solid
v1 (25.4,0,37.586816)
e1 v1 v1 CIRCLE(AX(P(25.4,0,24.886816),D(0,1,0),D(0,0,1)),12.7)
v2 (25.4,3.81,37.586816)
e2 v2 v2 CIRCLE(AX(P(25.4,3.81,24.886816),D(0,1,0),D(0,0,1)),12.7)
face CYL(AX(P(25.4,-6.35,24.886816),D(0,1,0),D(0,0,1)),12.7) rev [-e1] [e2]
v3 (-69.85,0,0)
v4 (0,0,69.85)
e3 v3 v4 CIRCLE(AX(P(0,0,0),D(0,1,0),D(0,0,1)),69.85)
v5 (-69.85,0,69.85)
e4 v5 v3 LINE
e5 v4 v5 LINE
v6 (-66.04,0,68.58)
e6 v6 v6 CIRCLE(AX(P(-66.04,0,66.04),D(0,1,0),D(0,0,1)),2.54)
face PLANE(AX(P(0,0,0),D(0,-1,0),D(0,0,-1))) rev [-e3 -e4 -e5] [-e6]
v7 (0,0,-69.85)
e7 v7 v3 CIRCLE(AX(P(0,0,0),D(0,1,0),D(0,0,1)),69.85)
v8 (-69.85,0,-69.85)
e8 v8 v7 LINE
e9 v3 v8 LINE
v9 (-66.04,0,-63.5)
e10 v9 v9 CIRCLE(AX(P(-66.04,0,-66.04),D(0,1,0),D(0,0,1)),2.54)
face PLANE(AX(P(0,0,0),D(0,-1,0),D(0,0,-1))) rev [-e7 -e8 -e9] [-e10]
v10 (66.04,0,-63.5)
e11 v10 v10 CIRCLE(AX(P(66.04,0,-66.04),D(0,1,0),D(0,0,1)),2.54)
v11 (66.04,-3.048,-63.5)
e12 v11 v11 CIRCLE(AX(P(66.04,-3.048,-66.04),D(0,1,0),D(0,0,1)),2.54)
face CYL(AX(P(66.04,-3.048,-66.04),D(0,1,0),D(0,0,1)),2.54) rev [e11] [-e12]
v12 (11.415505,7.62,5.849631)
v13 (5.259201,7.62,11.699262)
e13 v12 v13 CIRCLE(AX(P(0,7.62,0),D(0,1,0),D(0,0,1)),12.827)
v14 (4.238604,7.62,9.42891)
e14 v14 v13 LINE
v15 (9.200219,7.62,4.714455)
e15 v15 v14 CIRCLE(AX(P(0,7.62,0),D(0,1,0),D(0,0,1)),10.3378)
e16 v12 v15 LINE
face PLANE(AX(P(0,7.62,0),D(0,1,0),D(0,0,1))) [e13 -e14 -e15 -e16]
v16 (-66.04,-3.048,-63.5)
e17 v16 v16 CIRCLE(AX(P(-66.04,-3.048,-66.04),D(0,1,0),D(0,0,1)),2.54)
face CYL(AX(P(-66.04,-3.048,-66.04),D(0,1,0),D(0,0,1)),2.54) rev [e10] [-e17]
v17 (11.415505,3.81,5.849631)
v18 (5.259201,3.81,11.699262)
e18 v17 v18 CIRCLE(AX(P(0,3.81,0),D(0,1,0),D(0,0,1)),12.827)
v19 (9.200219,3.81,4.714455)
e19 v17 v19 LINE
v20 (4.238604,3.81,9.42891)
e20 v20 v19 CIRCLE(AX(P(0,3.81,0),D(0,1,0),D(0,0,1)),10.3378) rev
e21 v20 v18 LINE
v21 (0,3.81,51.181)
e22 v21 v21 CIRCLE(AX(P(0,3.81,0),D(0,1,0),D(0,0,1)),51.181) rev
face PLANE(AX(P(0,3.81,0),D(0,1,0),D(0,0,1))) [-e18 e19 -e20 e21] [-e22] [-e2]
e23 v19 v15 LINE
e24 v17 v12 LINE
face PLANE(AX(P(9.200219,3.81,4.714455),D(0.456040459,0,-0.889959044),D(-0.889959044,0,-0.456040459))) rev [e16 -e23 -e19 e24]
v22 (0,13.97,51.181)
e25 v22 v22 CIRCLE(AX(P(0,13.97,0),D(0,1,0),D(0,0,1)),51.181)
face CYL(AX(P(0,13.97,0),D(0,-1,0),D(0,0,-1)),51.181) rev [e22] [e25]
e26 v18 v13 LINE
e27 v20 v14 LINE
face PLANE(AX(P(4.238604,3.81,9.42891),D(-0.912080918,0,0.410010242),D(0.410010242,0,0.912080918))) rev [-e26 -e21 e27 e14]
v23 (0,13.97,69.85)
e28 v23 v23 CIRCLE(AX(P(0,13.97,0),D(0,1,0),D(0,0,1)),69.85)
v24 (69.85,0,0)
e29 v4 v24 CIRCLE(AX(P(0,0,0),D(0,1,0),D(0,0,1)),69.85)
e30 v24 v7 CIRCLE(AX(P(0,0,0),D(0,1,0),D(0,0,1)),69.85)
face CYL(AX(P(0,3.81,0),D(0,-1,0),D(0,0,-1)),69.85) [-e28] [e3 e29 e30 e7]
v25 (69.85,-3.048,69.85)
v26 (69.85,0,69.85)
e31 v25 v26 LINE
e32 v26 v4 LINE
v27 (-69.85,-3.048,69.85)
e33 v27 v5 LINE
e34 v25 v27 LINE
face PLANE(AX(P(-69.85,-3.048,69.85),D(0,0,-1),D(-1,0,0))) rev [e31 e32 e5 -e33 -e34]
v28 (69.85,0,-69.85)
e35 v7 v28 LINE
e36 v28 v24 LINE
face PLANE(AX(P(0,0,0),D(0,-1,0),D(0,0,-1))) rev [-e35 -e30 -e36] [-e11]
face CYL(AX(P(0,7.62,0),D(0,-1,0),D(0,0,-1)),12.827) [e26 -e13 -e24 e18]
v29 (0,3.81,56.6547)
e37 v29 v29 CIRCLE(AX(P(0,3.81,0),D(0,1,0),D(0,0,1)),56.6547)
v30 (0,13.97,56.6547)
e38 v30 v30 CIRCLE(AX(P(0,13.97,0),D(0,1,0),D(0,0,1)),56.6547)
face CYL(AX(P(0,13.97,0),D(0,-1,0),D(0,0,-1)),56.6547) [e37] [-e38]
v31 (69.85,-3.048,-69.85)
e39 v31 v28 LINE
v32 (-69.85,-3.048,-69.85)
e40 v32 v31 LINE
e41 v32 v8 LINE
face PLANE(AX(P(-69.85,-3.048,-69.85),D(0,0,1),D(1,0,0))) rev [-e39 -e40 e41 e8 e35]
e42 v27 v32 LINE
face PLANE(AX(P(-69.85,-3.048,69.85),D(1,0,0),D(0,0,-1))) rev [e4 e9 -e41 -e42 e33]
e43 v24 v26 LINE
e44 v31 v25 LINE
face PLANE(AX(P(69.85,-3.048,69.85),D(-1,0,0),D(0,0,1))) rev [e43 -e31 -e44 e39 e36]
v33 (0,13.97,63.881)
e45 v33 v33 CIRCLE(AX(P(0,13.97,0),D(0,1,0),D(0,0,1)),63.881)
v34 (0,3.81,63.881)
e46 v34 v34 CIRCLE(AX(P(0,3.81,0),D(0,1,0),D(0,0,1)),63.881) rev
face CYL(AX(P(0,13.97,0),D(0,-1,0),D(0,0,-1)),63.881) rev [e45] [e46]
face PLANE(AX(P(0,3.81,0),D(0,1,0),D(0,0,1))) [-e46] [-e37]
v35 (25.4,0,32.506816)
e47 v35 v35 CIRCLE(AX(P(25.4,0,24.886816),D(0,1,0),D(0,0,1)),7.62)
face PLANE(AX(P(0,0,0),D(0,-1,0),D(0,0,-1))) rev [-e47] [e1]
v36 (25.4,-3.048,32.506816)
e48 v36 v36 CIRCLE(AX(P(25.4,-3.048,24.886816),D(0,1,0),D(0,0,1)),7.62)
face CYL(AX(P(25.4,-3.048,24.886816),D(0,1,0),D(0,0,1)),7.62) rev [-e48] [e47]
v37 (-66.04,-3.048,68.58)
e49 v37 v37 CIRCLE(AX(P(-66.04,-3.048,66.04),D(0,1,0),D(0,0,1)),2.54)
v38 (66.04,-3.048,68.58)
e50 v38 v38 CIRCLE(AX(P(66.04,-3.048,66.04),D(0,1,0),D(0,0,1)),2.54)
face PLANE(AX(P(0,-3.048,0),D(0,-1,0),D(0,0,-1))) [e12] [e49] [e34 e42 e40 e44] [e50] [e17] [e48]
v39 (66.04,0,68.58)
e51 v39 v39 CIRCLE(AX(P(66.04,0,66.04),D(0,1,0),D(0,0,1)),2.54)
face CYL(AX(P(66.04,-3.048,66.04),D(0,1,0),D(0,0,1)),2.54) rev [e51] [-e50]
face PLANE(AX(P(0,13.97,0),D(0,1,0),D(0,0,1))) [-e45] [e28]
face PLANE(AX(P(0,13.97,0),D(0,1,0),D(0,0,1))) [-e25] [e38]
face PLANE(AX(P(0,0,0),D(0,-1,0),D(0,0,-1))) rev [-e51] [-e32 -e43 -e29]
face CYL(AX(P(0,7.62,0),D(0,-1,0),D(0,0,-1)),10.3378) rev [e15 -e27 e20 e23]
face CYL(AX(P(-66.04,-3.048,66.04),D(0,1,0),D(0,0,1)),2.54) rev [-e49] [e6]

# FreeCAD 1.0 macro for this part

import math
import FreeCAD as App
import Part
import Sketcher
Q = App.Units.Quantity


def add_polygon(sketch, points):
    """Adds a closed chain of lines whose ends are joined by coincident constraints."""
    first, n = sketch.GeometryCount, len(points)
    for a, b in zip(points, points[1:] + points[:1]):
        sketch.addGeometry(Part.LineSegment(App.Vector(*a, 0), App.Vector(*b, 0)), False)
    for i in range(n):
        sketch.addConstraint(Sketcher.Constraint("Coincident", first + i, 2, first + (i + 1) % n, 1))

doc = App.newDocument("Part")
params = doc.addObject("Spreadsheet::Sheet", "Params")
for row, (alias, value) in enumerate([
    ("sketch1_diameter", "5.5 in"),
    ("pad1_length", "0.15 in"),
    ("sketch2_diameter", "5.5 in"),
    ("sketch2_diameter2", "5.03 in"),
    ("sketch2_diameter3", "4.03 in"),
    ("sketch2_diameter4", "4.461 in"),
    ("pad2_length", "0.4 in"),
    ("sketch3_diameter", "1.01 in"),
    ("sketch3_diameter2", "0.814 in"),
    ("pad3_length", "0.15 in"),
    ("sketch4_radius", "0.505 in"),
    ("sketch4_radius2", "0.407 in"),
    ("pocket1_length", "0.15 in"),
    ("sketch5_diameter", "1 in"),
    ("pocket2_length", "0.4 in"),
    ("sketch6_width", "5.5 in"),
    ("pad4_length", "0.12 in"),
    ("sketch7_diameter", "0.6 in"),
    ("sketch7_diameter2", "0.2 in"),
    ("pocket3_length", "0.12 in"),
], start=1):
    params.set(f"A{row}", alias)
    params.set(f"B{row}", "=" + value)
    params.setAlias(f"B{row}", alias)

body = doc.addObject("PartDesign::Body", "Body")

sketch1 = body.newObject("Sketcher::SketchObject", "Sketch")
sketch1.AttachmentSupport = (doc.getObject("XZ_Plane"), [""])
sketch1.MapMode = "FlatFace"
sketch1.addGeometry(Part.Circle(App.Vector(0, 0, 0), App.Vector(0, 0, 1), 70), False)
sketch1.addConstraint([
    Sketcher.Constraint("Coincident", 0, 3, -1, 1),
    Sketcher.Constraint("Diameter", 0, Q("5.5 in")),
])
sketch1.setExpression("Constraints[1]", "Params.sketch1_diameter")
pad1 = body.newObject("PartDesign::Pad", "Pad")
pad1.Profile = sketch1
pad1.setExpression("Length", "Params.pad1_length")
pad1.Reversed = True

sketch2 = body.newObject("Sketcher::SketchObject", "Sketch001")
sketch2.AttachmentSupport = (doc.getObject("XZ_Plane"), [""])
sketch2.MapMode = "FlatFace"
sketch2.AttachmentOffset = App.Placement(App.Vector(0, 0, -0.15 * 25.4), App.Rotation())
sketch2.addGeometry([
    Part.Circle(App.Vector(0, 0, 0), App.Vector(0, 0, 1), 70),
    Part.Circle(App.Vector(0, 0, 0), App.Vector(0, 0, 1), 64),
    Part.Circle(App.Vector(0, 0, 0), App.Vector(0, 0, 1), 57),
    Part.Circle(App.Vector(0, 0, 0), App.Vector(0, 0, 1), 51),
], False)
sketch2.addConstraint([
    Sketcher.Constraint("Coincident", 0, 3, -1, 1),
    Sketcher.Constraint("Coincident", 1, 3, -1, 1),
    Sketcher.Constraint("Coincident", 2, 3, -1, 1),
    Sketcher.Constraint("Coincident", 3, 3, -1, 1),
    Sketcher.Constraint("Diameter", 0, Q("5.5 in")),
    Sketcher.Constraint("Diameter", 1, Q("5.03 in")),
    Sketcher.Constraint("Diameter", 3, Q("4.03 in")),
    Sketcher.Constraint("Diameter", 2, Q("4.461 in")),
])
sketch2.setExpression("Constraints[4]", "Params.sketch2_diameter")
sketch2.setExpression("Constraints[5]", "Params.sketch2_diameter2")
sketch2.setExpression("Constraints[6]", "Params.sketch2_diameter3")
sketch2.setExpression("Constraints[7]", "Params.sketch2_diameter4")
pad2 = body.newObject("PartDesign::Pad", "Pad001")
pad2.Profile = sketch2
pad2.setExpression("Length", "Params.pad2_length")
pad2.Reversed = True

sketch3 = body.newObject("Sketcher::SketchObject", "Sketch002")
sketch3.AttachmentSupport = (doc.getObject("XZ_Plane"), [""])
sketch3.MapMode = "FlatFace"
sketch3.AttachmentOffset = App.Placement(App.Vector(0, 0, -0.15 * 25.4), App.Rotation())
sketch3.addGeometry([
    Part.Circle(App.Vector(0, 0, 0), App.Vector(0, 0, 1), 13),
    Part.Circle(App.Vector(0, 0, 0), App.Vector(0, 0, 1), 10),
], False)
sketch3.addConstraint([
    Sketcher.Constraint("Coincident", 0, 3, -1, 1),
    Sketcher.Constraint("Coincident", 1, 3, -1, 1),
    Sketcher.Constraint("Diameter", 0, Q("1.01 in")),
    Sketcher.Constraint("Diameter", 1, Q("0.814 in")),
])
sketch3.setExpression("Constraints[2]", "Params.sketch3_diameter")
sketch3.setExpression("Constraints[3]", "Params.sketch3_diameter2")
pad3 = body.newObject("PartDesign::Pad", "Pad002")
pad3.Profile = sketch3
pad3.setExpression("Length", "Params.pad3_length")
pad3.Reversed = True

sketch4 = body.newObject("Sketcher::SketchObject", "Sketch003")
sketch4.AttachmentSupport = (doc.getObject("XZ_Plane"), [""])
sketch4.MapMode = "FlatFace"
sketch4.AttachmentOffset = App.Placement(App.Vector(0, 0, -0.3 * 25.4), App.Rotation())
sketch4.addGeometry([
    Part.LineSegment(App.Vector(4.2, 9.4, 0), App.Vector(5.3, 11.7, 0)),
    Part.ArcOfCircle(Part.Circle(App.Vector(0, 0, 0), App.Vector(0, 0, 1), 12.8), math.radians(27), math.radians(66)),
    Part.LineSegment(App.Vector(11.4, 5.8, 0), App.Vector(9.2, 4.7, 0)),
    Part.ArcOfCircle(Part.Circle(App.Vector(0, 0, 0), App.Vector(0, 0, 1), 10.3), math.radians(27), math.radians(66)),
], False)
sketch4.addConstraint([
    Sketcher.Constraint("Coincident", 0, 2, 1, 2),
    Sketcher.Constraint("Coincident", 1, 1, 2, 1),
    Sketcher.Constraint("Coincident", 2, 2, 3, 1),
    Sketcher.Constraint("Coincident", 3, 2, 0, 1),
    Sketcher.Constraint("Coincident", 1, 3, -1, 1),
    Sketcher.Constraint("Coincident", 3, 3, -1, 1),
    Sketcher.Constraint("Radius", 1, Q("0.505 in")),
    Sketcher.Constraint("Radius", 3, Q("0.407 in")),
    Sketcher.Constraint("DistanceX", -1, 1, 0, 2, 5.259201),
    Sketcher.Constraint("DistanceX", 3, 2, 1, 1, 7.176901),
    Sketcher.Constraint("DistanceY", -1, 1, 1, 1, 5.849631),
    Sketcher.Constraint("DistanceX", -1, 1, 2, 2, 9.200219),
])
sketch4.setExpression("Constraints[6]", "Params.sketch4_radius")
sketch4.setExpression("Constraints[7]", "Params.sketch4_radius2")
pocket1 = body.newObject("PartDesign::Pocket", "Pocket")
pocket1.Profile = sketch4
pocket1.setExpression("Length", "Params.pocket1_length")
pocket1.Reversed = True

sketch5 = body.newObject("Sketcher::SketchObject", "Sketch004")
sketch5.AttachmentSupport = (doc.getObject("XZ_Plane"), [""])
sketch5.MapMode = "FlatFace"
sketch5.AttachmentOffset = App.Placement(App.Vector(0, 0, -0.15 * 25.4), App.Rotation())
sketch5.addGeometry(Part.Circle(App.Vector(25, 25, 0), App.Vector(0, 0, 1), 13), False)
sketch5.addConstraint([
    Sketcher.Constraint("Diameter", 0, Q("1 in")),
    Sketcher.Constraint("DistanceX", -1, 1, 0, 3, Q("1 in")),
    Sketcher.Constraint("DistanceY", -1, 1, 0, 3, 24.886816),
])
sketch5.setExpression("Constraints[0]", "Params.sketch5_diameter")
pocket2 = body.newObject("PartDesign::Pocket", "Pocket001")
pocket2.Profile = sketch5
pocket2.setExpression("Length", "Params.pocket2_length")
pocket2.Reversed = True

sketch6 = body.newObject("Sketcher::SketchObject", "Sketch005")
sketch6.AttachmentSupport = (doc.getObject("XZ_Plane"), [""])
sketch6.MapMode = "FlatFace"
add_polygon(sketch6, [(-70, 70), (-70, -70), (70, -70), (70, 70)])
sketch6.addConstraint([
    Sketcher.Constraint("Vertical", 0),
    Sketcher.Constraint("Horizontal", 1),
    Sketcher.Constraint("Vertical", 2),
    Sketcher.Constraint("Horizontal", 3),
    Sketcher.Constraint("Symmetric", 0, 2, 2, 2, -1, 1),
    Sketcher.Constraint("Equal", 3, 0),
    Sketcher.Constraint("DistanceX", 1, 1, 1, 2, Q("5.5 in")),
])
sketch6.setExpression("Constraints[10]", "Params.sketch6_width")
pad4 = body.newObject("PartDesign::Pad", "Pad003")
pad4.Profile = sketch6
pad4.setExpression("Length", "Params.pad4_length")

sketch7 = body.newObject("Sketcher::SketchObject", "Sketch006")
sketch7.AttachmentSupport = (doc.getObject("XZ_Plane"), [""])
sketch7.MapMode = "FlatFace"
sketch7.addGeometry([
    Part.Circle(App.Vector(25.4, 24.9, 0), App.Vector(0, 0, 1), 7.6),
    Part.Circle(App.Vector(-66, 66, 0), App.Vector(0, 0, 1), 2.5),
    Part.Circle(App.Vector(66, 66, 0), App.Vector(0, 0, 1), 2.5),
    Part.Circle(App.Vector(66, -66, 0), App.Vector(0, 0, 1), 2.5),
    Part.Circle(App.Vector(-66, -66, 0), App.Vector(0, 0, 1), 2.5),
], False)
sketch7.addConstraint([
    Sketcher.Constraint("Equal", 1, 2),
    Sketcher.Constraint("Equal", 2, 3),
    Sketcher.Constraint("Equal", 3, 4),
    Sketcher.Constraint("Symmetric", 1, 3, 3, 3, -1, 1),
    Sketcher.Constraint("Symmetric", 2, 3, 4, 3, -1, 1),
    Sketcher.Constraint("Symmetric", 1, 3, 2, 3, -2),
    Sketcher.Constraint("Diameter", 0, Q("0.6 in")),
    Sketcher.Constraint("Diameter", 1, Q("0.2 in")),
    Sketcher.Constraint("DistanceX", -1, 1, 0, 3, Q("1 in")),
    Sketcher.Constraint("DistanceX", 1, 3, -1, 1, Q("2.6 in")),
    Sketcher.Constraint("DistanceY", -1, 1, 1, 3, Q("2.6 in")),
    Sketcher.Constraint("DistanceY", -1, 1, 0, 3, 24.886816),
])
sketch7.setExpression("Constraints[6]", "Params.sketch7_diameter")
sketch7.setExpression("Constraints[7]", "Params.sketch7_diameter2")
pocket3 = body.newObject("PartDesign::Pocket", "Pocket002")
pocket3.Profile = sketch7
pocket3.setExpression("Length", "Params.pocket3_length")
pocket3.Reversed = True

doc.recompute()
